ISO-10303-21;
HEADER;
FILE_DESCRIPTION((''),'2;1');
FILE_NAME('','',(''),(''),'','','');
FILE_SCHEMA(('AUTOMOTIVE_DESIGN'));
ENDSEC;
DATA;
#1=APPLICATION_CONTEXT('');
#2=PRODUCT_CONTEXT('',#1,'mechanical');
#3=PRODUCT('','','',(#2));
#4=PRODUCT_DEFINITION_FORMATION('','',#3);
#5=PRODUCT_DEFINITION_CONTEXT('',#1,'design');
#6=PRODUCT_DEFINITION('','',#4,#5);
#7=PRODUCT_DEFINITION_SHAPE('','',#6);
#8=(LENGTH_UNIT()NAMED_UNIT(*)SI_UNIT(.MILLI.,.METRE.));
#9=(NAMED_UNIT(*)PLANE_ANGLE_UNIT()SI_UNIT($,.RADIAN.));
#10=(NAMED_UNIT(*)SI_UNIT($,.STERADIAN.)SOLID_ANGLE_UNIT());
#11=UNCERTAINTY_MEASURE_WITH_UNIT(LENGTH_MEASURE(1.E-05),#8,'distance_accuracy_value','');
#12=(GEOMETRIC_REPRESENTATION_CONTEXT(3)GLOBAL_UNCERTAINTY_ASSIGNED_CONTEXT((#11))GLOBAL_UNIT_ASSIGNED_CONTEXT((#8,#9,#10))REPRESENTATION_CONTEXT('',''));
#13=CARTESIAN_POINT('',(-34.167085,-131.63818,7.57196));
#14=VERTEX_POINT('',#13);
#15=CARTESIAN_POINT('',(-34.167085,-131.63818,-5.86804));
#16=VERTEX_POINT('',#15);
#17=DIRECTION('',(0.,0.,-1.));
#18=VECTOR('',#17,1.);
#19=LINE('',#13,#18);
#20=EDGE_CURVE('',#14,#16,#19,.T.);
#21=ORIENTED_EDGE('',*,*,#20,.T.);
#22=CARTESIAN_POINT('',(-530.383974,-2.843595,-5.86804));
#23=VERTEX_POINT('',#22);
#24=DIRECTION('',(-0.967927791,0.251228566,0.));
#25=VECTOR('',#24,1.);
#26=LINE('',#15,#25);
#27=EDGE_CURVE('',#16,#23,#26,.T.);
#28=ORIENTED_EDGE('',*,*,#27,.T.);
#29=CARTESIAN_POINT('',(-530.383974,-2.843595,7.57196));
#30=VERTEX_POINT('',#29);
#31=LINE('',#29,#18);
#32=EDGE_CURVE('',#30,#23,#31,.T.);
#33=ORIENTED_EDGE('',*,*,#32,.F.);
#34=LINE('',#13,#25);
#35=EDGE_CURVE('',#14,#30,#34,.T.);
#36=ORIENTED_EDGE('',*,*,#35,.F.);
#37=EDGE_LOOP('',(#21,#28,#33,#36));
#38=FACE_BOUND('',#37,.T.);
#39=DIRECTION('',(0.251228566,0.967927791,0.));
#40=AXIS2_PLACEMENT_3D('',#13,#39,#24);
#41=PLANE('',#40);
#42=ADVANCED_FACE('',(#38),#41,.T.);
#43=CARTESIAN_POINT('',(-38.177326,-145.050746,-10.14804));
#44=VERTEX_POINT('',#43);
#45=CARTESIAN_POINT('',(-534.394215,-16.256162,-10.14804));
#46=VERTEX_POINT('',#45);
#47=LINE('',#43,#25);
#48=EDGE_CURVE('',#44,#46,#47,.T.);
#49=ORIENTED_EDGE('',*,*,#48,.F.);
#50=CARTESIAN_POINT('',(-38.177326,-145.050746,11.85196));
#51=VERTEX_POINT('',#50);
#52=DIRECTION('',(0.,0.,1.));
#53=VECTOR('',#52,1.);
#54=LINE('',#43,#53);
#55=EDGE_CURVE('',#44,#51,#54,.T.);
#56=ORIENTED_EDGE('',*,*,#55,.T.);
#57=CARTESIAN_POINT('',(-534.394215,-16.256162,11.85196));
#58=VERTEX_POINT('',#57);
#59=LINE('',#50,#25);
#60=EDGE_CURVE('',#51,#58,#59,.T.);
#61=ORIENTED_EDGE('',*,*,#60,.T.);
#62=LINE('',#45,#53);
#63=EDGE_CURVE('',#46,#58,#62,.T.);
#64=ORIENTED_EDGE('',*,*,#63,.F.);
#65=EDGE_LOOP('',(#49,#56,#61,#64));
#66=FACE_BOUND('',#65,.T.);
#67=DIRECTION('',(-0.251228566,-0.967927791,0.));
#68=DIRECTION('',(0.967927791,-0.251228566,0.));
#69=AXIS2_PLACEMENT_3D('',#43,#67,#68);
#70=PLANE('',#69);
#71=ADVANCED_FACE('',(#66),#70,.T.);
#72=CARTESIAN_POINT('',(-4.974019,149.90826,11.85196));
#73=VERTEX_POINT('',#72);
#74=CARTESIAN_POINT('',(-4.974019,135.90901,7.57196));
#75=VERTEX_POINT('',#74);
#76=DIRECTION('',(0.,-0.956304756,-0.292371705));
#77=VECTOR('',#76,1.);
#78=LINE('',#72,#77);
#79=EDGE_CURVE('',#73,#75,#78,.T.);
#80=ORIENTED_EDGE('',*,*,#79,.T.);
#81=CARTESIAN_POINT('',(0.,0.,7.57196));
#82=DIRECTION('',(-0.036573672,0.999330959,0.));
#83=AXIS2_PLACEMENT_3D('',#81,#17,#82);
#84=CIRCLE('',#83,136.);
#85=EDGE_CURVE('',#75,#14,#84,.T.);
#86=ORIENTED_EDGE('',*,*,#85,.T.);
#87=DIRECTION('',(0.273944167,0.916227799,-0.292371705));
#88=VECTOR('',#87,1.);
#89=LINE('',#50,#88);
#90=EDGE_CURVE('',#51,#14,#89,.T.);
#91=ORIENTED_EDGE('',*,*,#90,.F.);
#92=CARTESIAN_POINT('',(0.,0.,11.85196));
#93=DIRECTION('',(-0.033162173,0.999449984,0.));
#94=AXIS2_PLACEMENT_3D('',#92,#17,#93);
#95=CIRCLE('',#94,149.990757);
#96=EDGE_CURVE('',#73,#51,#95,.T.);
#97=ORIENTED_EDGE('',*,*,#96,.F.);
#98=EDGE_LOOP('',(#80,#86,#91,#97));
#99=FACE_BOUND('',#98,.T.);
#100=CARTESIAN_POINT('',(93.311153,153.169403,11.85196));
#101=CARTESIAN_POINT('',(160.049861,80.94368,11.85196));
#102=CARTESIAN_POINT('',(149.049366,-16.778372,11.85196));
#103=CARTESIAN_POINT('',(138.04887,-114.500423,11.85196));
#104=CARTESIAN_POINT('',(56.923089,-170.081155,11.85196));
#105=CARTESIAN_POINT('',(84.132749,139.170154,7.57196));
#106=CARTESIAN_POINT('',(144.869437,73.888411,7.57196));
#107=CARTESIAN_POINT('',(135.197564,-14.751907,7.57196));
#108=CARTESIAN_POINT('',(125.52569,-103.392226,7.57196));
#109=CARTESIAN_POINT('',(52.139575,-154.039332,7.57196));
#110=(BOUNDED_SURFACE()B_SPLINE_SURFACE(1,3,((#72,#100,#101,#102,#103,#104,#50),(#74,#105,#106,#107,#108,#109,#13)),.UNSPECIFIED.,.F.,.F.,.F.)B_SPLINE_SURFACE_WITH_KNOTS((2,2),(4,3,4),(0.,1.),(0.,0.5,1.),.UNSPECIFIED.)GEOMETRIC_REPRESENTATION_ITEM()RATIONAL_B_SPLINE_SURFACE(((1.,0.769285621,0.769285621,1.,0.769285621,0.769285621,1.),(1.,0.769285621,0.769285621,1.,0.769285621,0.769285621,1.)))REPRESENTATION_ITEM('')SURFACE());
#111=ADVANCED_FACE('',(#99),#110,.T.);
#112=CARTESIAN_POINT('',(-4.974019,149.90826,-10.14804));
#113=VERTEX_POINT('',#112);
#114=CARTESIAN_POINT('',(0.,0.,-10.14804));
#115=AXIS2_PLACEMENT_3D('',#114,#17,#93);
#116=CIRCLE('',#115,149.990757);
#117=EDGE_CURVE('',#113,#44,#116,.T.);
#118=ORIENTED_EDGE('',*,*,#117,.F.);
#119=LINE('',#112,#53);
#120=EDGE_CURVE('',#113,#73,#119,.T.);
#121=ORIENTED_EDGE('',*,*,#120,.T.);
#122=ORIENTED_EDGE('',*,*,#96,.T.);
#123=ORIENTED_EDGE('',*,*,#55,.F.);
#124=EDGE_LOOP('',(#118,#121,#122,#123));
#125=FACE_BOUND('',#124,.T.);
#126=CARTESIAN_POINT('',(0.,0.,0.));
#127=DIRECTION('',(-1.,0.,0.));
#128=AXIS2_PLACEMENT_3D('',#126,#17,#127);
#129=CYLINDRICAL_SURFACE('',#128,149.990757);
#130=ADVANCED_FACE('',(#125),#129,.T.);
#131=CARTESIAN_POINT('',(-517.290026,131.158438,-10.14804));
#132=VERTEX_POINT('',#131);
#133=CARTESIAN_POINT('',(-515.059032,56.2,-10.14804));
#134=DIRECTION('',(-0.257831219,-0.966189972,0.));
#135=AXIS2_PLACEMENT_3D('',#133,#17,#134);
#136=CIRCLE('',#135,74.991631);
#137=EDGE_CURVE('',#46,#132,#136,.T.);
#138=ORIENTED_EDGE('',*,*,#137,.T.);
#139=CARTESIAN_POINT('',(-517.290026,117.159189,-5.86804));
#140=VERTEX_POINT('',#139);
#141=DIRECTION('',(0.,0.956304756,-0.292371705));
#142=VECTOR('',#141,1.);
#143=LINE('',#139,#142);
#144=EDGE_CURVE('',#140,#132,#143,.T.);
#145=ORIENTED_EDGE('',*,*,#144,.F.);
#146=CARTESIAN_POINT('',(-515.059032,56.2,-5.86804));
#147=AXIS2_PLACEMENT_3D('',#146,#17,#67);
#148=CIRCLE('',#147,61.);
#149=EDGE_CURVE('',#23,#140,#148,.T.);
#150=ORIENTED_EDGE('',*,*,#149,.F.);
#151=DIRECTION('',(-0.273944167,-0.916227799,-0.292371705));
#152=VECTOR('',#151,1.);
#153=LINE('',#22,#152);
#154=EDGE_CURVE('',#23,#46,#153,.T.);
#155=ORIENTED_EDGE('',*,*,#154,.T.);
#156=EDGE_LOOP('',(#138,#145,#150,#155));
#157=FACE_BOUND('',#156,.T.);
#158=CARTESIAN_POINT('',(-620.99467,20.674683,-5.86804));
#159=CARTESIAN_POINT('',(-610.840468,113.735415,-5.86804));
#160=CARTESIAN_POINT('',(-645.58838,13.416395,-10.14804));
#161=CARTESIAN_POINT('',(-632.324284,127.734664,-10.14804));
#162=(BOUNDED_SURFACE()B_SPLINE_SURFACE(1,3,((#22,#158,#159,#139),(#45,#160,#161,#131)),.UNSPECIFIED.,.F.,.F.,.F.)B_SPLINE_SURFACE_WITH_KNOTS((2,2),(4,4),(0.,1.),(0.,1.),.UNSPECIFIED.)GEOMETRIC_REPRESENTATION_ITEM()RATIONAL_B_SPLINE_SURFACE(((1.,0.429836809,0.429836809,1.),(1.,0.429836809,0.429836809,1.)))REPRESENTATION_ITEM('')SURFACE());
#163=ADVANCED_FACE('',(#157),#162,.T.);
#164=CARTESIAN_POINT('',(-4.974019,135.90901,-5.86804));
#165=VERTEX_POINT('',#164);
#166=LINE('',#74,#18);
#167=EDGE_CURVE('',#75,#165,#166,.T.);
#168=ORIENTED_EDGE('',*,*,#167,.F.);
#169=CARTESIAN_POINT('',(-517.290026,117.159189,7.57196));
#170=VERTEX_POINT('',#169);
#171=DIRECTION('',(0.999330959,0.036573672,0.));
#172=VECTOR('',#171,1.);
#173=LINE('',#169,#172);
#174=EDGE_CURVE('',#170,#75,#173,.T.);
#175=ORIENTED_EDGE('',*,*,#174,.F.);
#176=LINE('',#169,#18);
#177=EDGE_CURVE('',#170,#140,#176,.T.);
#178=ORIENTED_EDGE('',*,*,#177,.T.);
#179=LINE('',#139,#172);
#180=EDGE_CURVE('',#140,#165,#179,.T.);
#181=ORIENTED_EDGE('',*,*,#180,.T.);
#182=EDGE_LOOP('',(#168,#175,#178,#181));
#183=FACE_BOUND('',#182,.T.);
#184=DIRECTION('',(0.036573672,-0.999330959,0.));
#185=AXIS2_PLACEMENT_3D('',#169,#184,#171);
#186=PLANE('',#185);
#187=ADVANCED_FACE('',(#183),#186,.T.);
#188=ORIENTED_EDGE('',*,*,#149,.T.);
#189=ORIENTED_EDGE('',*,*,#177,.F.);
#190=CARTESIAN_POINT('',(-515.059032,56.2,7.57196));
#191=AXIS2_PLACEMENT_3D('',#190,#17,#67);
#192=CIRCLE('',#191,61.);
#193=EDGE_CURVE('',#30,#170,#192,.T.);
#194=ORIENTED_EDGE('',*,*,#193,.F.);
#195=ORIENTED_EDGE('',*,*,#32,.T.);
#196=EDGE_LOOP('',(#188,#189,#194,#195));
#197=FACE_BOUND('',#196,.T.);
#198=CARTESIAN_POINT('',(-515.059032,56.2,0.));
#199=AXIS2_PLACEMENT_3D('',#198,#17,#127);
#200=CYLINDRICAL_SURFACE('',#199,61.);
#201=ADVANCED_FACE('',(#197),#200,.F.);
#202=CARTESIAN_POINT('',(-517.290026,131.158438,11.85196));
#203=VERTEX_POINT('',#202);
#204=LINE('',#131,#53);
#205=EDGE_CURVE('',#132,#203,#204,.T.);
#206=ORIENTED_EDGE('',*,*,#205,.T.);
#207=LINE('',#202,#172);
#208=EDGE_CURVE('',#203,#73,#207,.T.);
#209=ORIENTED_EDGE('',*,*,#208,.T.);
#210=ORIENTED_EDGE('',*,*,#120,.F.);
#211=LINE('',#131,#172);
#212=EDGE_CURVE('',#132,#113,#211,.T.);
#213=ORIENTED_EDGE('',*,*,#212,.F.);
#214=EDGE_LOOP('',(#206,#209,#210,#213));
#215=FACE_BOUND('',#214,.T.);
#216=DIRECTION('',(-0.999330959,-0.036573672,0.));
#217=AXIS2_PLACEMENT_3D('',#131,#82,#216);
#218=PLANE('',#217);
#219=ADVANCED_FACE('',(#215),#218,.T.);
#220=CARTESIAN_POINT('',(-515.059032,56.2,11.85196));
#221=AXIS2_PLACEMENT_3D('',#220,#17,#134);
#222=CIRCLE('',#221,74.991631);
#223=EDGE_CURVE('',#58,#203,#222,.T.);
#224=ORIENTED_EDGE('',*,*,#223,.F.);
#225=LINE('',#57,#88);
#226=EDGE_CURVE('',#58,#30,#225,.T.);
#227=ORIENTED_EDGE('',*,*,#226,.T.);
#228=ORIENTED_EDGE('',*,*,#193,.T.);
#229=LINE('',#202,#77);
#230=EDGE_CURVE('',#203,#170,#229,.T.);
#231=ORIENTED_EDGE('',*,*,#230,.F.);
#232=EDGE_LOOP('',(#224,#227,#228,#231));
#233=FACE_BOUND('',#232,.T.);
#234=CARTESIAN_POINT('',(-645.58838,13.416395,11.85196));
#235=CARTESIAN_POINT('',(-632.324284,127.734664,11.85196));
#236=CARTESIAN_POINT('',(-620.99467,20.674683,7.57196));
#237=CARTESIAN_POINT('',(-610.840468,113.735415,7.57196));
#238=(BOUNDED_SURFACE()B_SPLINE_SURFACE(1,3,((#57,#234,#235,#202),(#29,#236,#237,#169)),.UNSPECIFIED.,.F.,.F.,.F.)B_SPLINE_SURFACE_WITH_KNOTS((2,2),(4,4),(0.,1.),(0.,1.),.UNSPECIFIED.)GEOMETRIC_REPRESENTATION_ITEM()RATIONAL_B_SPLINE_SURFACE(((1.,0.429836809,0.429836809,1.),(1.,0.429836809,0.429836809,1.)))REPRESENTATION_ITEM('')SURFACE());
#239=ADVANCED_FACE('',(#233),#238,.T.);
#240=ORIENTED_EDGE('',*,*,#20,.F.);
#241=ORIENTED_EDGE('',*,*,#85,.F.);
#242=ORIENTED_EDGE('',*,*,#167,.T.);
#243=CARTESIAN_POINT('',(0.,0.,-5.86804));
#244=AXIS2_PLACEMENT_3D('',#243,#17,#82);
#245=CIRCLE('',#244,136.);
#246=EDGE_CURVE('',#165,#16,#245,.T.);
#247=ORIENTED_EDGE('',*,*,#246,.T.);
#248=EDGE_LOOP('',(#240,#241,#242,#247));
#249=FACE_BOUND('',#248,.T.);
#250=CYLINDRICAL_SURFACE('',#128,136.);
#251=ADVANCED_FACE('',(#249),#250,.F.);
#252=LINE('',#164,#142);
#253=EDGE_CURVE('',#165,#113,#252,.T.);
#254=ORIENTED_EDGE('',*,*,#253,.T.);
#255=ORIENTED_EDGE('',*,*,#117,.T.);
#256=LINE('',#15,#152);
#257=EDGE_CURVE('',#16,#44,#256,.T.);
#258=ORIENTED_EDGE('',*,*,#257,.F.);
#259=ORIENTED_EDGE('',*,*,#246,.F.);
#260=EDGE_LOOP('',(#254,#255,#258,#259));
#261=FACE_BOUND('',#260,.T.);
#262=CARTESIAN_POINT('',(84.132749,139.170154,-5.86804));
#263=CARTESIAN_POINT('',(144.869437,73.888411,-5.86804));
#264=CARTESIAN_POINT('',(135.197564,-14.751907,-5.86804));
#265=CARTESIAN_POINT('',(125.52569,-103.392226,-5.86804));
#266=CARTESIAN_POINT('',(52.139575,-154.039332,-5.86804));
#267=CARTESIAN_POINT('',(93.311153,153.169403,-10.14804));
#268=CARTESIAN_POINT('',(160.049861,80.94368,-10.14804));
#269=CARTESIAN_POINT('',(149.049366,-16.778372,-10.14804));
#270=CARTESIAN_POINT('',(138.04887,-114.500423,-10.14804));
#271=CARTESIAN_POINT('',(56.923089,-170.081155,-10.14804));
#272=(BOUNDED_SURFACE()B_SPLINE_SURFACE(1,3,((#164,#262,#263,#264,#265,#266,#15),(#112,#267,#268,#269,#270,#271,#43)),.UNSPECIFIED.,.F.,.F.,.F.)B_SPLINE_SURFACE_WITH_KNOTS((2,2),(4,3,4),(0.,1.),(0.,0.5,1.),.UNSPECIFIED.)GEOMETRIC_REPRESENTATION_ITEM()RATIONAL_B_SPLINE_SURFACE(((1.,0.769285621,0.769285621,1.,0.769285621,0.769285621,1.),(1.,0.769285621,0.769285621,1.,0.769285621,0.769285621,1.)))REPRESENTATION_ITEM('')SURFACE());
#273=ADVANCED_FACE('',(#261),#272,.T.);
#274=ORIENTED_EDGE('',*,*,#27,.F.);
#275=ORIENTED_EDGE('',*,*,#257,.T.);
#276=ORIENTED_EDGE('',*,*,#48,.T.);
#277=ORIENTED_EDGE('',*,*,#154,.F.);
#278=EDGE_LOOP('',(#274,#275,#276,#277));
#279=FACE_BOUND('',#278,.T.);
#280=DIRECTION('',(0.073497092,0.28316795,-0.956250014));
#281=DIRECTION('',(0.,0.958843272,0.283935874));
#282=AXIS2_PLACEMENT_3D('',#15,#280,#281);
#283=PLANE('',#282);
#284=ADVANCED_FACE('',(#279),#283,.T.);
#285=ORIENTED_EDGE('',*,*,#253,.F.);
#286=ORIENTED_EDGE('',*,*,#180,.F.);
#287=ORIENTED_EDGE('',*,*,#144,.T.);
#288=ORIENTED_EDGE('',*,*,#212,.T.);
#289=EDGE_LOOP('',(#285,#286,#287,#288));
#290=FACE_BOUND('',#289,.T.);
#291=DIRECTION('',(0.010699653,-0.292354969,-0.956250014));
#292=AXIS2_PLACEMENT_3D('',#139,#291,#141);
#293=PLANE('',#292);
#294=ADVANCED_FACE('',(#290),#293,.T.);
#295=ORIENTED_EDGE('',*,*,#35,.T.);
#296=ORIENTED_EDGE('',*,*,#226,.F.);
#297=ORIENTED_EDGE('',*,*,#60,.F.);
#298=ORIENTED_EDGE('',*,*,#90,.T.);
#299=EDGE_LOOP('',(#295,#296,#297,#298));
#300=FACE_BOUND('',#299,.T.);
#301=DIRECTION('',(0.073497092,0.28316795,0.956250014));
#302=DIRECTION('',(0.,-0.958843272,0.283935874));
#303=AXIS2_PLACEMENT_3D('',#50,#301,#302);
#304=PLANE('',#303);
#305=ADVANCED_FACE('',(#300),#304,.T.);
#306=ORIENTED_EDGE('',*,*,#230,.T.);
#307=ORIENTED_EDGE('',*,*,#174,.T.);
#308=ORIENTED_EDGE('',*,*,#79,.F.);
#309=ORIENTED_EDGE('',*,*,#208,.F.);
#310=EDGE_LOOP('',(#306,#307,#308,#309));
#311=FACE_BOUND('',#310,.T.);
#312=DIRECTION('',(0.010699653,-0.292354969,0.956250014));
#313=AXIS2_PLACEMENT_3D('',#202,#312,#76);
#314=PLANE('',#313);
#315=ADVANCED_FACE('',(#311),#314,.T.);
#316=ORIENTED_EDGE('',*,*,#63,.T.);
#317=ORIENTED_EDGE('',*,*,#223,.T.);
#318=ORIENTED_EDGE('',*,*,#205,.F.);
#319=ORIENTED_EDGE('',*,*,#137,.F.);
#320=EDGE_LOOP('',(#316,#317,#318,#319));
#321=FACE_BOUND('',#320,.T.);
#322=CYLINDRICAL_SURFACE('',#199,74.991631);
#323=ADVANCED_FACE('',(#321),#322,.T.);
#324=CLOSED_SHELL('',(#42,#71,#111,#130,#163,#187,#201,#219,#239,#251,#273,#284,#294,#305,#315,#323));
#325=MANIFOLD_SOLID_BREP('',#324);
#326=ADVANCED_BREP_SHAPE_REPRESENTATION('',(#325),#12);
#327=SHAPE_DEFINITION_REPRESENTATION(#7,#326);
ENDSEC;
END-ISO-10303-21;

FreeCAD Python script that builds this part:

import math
import FreeCAD as App
import Part
import Sketcher
from FreeCAD import Vector
Q = App.Units.Quantity

doc = App.newDocument("Part")
body = doc.addObject("PartDesign::Body", "Body")

# Sketch on YZ plane
sketch1 = doc.addObject("Sketcher::SketchObject", "Sketch")
body.addObject(sketch1)
sketch1.AttachmentSupport = (doc.YZ_Plane, [""])
sketch1.MapMode = "FlatFace"
sketch1.AttachmentOffset = App.Placement(Vector(0, 0, -4.974019), App.Rotation())
sketch1.addGeometry(Part.LineSegment(Vector(136, 8, 0), Vector(136, -6, 0)), False)
sketch1.addGeometry(Part.LineSegment(Vector(136, -6, 0), Vector(150, -10, 0)), False)
sketch1.addGeometry(Part.LineSegment(Vector(150, -10, 0), Vector(150, 12, 0)), False)
sketch1.addGeometry(Part.LineSegment(Vector(150, 12, 0), Vector(136, 8, 0)), False)
sketch1.addConstraint(Sketcher.Constraint("Coincident", 0, 2, 1, 1))
sketch1.addConstraint(Sketcher.Constraint("Coincident", 1, 2, 2, 1))
sketch1.addConstraint(Sketcher.Constraint("Coincident", 2, 2, 3, 1))
sketch1.addConstraint(Sketcher.Constraint("Coincident", 3, 2, 0, 1))
sketch1.addConstraint(Sketcher.Constraint("Vertical", 0))
sketch1.addConstraint(Sketcher.Constraint("Vertical", 2))
sketch1.addConstraint(Sketcher.Constraint("Equal", 1, 3))
sketch1.addConstraint(Sketcher.Constraint("DistanceY", 2, 1, 2, 2, 22.0))
sketch1.addConstraint(Sketcher.Constraint("Angle", 1, Q("-17 deg")))
sketch1.addConstraint(Sketcher.Constraint("DistanceY", 0, 2, 0, 1, 13.44))
sketch1.addConstraint(Sketcher.Constraint("DistanceX", -1, 1, 0, 2, 135.90901))
sketch1.addConstraint(Sketcher.Constraint("DistanceY", 0, 2, -1, 1, 5.86804))

# Sketch on XY plane
sketch2 = doc.addObject("Sketcher::SketchObject", "Sketch001")
body.addObject(sketch2)
sketch2.AttachmentSupport = (doc.XY_Plane, [""])
sketch2.MapMode = "FlatFace"
sketch2.addGeometry(Part.LineSegment(Vector(-34, -132, 0), Vector(-530, -3, 0)), False)
sketch2.addGeometry(Part.ArcOfCircle(Part.Circle(Vector(-515, 56, 0), Vector(0, 0, 1), 61), math.radians(92), math.radians(255)), False)
sketch2.addGeometry(Part.LineSegment(Vector(-517, 117, 0), Vector(-5, 136, 0)), False)
sketch2.addGeometry(Part.ArcOfCircle(Part.Circle(Vector(0, 0, 0), Vector(0, 0, 1), 136), math.radians(-105), math.radians(92)), False)
sketch2.addConstraint(Sketcher.Constraint("Tangent", 0, 2, 1, 2))
sketch2.addConstraint(Sketcher.Constraint("Tangent", 1, 1, 2, 1))
sketch2.addConstraint(Sketcher.Constraint("Tangent", 2, 2, 3, 2))
sketch2.addConstraint(Sketcher.Constraint("Tangent", 3, 1, 0, 1))
sketch2.addConstraint(Sketcher.Constraint("Coincident", 3, 3, -1, 1))
sketch2.addConstraint(Sketcher.Constraint("Radius", 1, 61.0))
sketch2.addConstraint(Sketcher.Constraint("Radius", 3, 136.0))
sketch2.addConstraint(Sketcher.Constraint("DistanceY", -1, 1, 1, 3, 56.2))
sketch2.addConstraint(Sketcher.Constraint("DistanceX", 1, 3, -1, 1, 515.059032))
doc.recompute()

additivepipe = doc.addObject("PartDesign::AdditivePipe", "AdditivePipe")
body.addObject(additivepipe)
additivepipe.Profile = sketch1
additivepipe.Spine = (sketch2, ["Edge1", "Edge2", "Edge3", "Edge4"])

doc.recompute()
